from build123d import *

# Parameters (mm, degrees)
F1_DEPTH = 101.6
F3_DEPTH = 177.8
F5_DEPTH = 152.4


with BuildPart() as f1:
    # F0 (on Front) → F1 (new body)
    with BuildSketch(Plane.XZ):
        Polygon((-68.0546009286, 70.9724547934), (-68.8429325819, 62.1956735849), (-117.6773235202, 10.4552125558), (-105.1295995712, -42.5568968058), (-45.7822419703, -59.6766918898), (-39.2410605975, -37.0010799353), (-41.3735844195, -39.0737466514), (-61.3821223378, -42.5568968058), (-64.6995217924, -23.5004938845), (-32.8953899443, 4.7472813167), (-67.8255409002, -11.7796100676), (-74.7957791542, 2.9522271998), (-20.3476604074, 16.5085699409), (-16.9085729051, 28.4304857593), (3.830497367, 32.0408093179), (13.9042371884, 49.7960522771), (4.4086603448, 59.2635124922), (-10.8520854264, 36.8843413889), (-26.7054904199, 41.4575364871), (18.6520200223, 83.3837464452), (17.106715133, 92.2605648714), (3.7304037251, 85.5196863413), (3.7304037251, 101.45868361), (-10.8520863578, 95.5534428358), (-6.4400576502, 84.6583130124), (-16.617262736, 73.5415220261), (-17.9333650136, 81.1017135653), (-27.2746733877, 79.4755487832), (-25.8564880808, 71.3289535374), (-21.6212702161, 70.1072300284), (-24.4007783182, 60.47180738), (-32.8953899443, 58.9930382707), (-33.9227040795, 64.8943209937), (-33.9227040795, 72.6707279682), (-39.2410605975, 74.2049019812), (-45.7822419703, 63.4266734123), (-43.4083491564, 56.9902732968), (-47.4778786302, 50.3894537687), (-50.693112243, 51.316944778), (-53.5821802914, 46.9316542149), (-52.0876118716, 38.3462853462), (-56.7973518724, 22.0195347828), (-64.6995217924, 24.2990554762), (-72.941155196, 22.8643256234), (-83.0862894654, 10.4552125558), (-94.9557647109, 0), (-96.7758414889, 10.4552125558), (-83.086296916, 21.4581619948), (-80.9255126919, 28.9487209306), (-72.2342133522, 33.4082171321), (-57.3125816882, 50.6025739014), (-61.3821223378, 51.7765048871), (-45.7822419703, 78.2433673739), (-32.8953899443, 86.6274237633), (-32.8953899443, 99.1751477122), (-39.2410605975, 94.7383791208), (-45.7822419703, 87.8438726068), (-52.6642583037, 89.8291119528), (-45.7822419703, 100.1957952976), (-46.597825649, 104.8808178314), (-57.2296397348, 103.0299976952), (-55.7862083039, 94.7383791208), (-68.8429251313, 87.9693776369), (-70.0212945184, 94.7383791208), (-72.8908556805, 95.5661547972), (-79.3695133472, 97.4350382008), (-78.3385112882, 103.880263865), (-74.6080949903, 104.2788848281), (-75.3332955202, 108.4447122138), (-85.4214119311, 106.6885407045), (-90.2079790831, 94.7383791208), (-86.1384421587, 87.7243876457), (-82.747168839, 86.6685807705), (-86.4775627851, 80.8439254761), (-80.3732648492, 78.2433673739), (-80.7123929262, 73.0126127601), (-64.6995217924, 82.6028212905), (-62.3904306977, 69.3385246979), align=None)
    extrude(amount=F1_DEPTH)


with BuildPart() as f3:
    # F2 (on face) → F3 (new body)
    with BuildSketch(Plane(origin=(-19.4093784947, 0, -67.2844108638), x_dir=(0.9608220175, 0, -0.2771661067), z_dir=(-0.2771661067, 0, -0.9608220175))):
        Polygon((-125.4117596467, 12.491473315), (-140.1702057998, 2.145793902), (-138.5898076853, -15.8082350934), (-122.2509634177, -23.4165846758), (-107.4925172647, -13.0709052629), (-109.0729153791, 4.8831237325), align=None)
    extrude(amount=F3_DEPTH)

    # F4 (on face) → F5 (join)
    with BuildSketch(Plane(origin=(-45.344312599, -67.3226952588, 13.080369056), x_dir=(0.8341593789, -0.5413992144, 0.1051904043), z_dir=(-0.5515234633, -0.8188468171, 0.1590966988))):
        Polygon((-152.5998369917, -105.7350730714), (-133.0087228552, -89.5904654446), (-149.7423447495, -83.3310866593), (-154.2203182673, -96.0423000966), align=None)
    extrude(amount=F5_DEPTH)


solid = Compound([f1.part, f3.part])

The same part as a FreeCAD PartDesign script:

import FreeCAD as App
import Part
import Sketcher
Q = App.Units.Quantity

doc = App.newDocument("Part")
body = doc.addObject("PartDesign::Body", "Body")

# Sketch on XZ plane
sketch1 = body.newObject("Sketcher::SketchObject", "Sketch")
sketch1.AttachmentSupport = (doc.getObject("XZ_Plane"), [""])
sketch1.MapMode = "FlatFace"
sketch1.addGeometry([
    Part.LineSegment(App.Vector(-68.054601, 70.972455, 0), App.Vector(-68.842933, 62.195674, 0)),  # 0
    Part.LineSegment(App.Vector(-68.842933, 62.195674, 0), App.Vector(-117.677324, 10.455213, 0)),  # 1
    Part.LineSegment(App.Vector(-117.677324, 10.455213, 0), App.Vector(-105.1296, -42.556897, 0)),  # 2
    Part.LineSegment(App.Vector(-105.1296, -42.556897, 0), App.Vector(-45.782242, -59.676692, 0)),  # 3
    Part.LineSegment(App.Vector(-45.782242, -59.676692, 0), App.Vector(-39.241061, -37.00108, 0)),  # 4
    Part.LineSegment(App.Vector(-39.241061, -37.00108, 0), App.Vector(-41.373584, -39.073747, 0)),  # 5
    Part.LineSegment(App.Vector(-41.373584, -39.073747, 0), App.Vector(-61.382122, -42.556897, 0)),  # 6
    Part.LineSegment(App.Vector(-61.382122, -42.556897, 0), App.Vector(-64.699522, -23.500494, 0)),  # 7
    Part.LineSegment(App.Vector(-64.699522, -23.500494, 0), App.Vector(-32.89539, 4.747281, 0)),  # 8
    Part.LineSegment(App.Vector(-32.89539, 4.747281, 0), App.Vector(-67.825541, -11.77961, 0)),  # 9
    Part.LineSegment(App.Vector(-67.825541, -11.77961, 0), App.Vector(-74.795779, 2.952227, 0)),  # 10
    Part.LineSegment(App.Vector(-74.795779, 2.952227, 0), App.Vector(-20.34766, 16.50857, 0)),  # 11
    Part.LineSegment(App.Vector(-20.34766, 16.50857, 0), App.Vector(-16.908573, 28.430486, 0)),  # 12
    Part.LineSegment(App.Vector(-16.908573, 28.430486, 0), App.Vector(3.830497, 32.040809, 0)),  # 13
    Part.LineSegment(App.Vector(3.830497, 32.040809, 0), App.Vector(13.904237, 49.796052, 0)),  # 14
    Part.LineSegment(App.Vector(13.904237, 49.796052, 0), App.Vector(4.40866, 59.263512, 0)),  # 15
    Part.LineSegment(App.Vector(4.40866, 59.263512, 0), App.Vector(-10.852085, 36.884341, 0)),  # 16
    Part.LineSegment(App.Vector(-10.852085, 36.884341, 0), App.Vector(-26.70549, 41.457536, 0)),  # 17
    Part.LineSegment(App.Vector(-26.70549, 41.457536, 0), App.Vector(18.65202, 83.383746, 0)),  # 18
    Part.LineSegment(App.Vector(18.65202, 83.383746, 0), App.Vector(17.106715, 92.260565, 0)),  # 19
    Part.LineSegment(App.Vector(17.106715, 92.260565, 0), App.Vector(3.730404, 85.519686, 0)),  # 20
    Part.LineSegment(App.Vector(3.730404, 85.519686, 0), App.Vector(3.730404, 101.458684, 0)),  # 21
    Part.LineSegment(App.Vector(3.730404, 101.458684, 0), App.Vector(-10.852086, 95.553443, 0)),  # 22
    Part.LineSegment(App.Vector(-10.852086, 95.553443, 0), App.Vector(-6.440058, 84.658313, 0)),  # 23
    Part.LineSegment(App.Vector(-6.440058, 84.658313, 0), App.Vector(-16.617263, 73.541522, 0)),  # 24
    Part.LineSegment(App.Vector(-16.617263, 73.541522, 0), App.Vector(-17.933365, 81.101714, 0)),  # 25
    Part.LineSegment(App.Vector(-17.933365, 81.101714, 0), App.Vector(-27.274673, 79.475549, 0)),  # 26
    Part.LineSegment(App.Vector(-27.274673, 79.475549, 0), App.Vector(-25.856488, 71.328954, 0)),  # 27
    Part.LineSegment(App.Vector(-25.856488, 71.328954, 0), App.Vector(-21.62127, 70.10723, 0)),  # 28
    Part.LineSegment(App.Vector(-21.62127, 70.10723, 0), App.Vector(-24.400778, 60.471807, 0)),  # 29
    Part.LineSegment(App.Vector(-24.400778, 60.471807, 0), App.Vector(-32.89539, 58.993038, 0)),  # 30
    Part.LineSegment(App.Vector(-32.89539, 58.993038, 0), App.Vector(-33.922704, 64.894321, 0)),  # 31
    Part.LineSegment(App.Vector(-33.922704, 64.894321, 0), App.Vector(-33.922704, 72.670728, 0)),  # 32
    Part.LineSegment(App.Vector(-33.922704, 72.670728, 0), App.Vector(-39.241061, 74.204902, 0)),  # 33
    Part.LineSegment(App.Vector(-39.241061, 74.204902, 0), App.Vector(-45.782242, 63.426673, 0)),  # 34
    Part.LineSegment(App.Vector(-45.782242, 63.426673, 0), App.Vector(-43.408349, 56.990273, 0)),  # 35
    Part.LineSegment(App.Vector(-43.408349, 56.990273, 0), App.Vector(-47.477879, 50.389454, 0)),  # 36
    Part.LineSegment(App.Vector(-47.477879, 50.389454, 0), App.Vector(-50.693112, 51.316945, 0)),  # 37
    Part.LineSegment(App.Vector(-50.693112, 51.316945, 0), App.Vector(-53.58218, 46.931654, 0)),  # 38
    Part.LineSegment(App.Vector(-53.58218, 46.931654, 0), App.Vector(-52.087612, 38.346285, 0)),  # 39
    Part.LineSegment(App.Vector(-52.087612, 38.346285, 0), App.Vector(-56.797352, 22.019535, 0)),  # 40
    Part.LineSegment(App.Vector(-56.797352, 22.019535, 0), App.Vector(-64.699522, 24.299055, 0)),  # 41
    Part.LineSegment(App.Vector(-64.699522, 24.299055, 0), App.Vector(-72.941155, 22.864326, 0)),  # 42
    Part.LineSegment(App.Vector(-72.941155, 22.864326, 0), App.Vector(-83.086289, 10.455213, 0)),  # 43
    Part.LineSegment(App.Vector(-83.086289, 10.455213, 0), App.Vector(-94.955765, 0, 0)),  # 44
    Part.LineSegment(App.Vector(-94.955765, 0, 0), App.Vector(-96.775841, 10.455213, 0)),  # 45
    Part.LineSegment(App.Vector(-96.775841, 10.455213, 0), App.Vector(-83.086297, 21.458162, 0)),  # 46
    Part.LineSegment(App.Vector(-83.086297, 21.458162, 0), App.Vector(-80.925513, 28.948721, 0)),  # 47
    Part.LineSegment(App.Vector(-80.925513, 28.948721, 0), App.Vector(-72.234213, 33.408217, 0)),  # 48
    Part.LineSegment(App.Vector(-72.234213, 33.408217, 0), App.Vector(-57.312582, 50.602574, 0)),  # 49
    Part.LineSegment(App.Vector(-57.312582, 50.602574, 0), App.Vector(-61.382122, 51.776505, 0)),  # 50
    Part.LineSegment(App.Vector(-61.382122, 51.776505, 0), App.Vector(-45.782242, 78.243367, 0)),  # 51
    Part.LineSegment(App.Vector(-45.782242, 78.243367, 0), App.Vector(-32.89539, 86.627424, 0)),  # 52
    Part.LineSegment(App.Vector(-32.89539, 86.627424, 0), App.Vector(-32.89539, 99.175148, 0)),  # 53
    Part.LineSegment(App.Vector(-32.89539, 99.175148, 0), App.Vector(-39.241061, 94.738379, 0)),  # 54
    Part.LineSegment(App.Vector(-39.241061, 94.738379, 0), App.Vector(-45.782242, 87.843873, 0)),  # 55
    Part.LineSegment(App.Vector(-45.782242, 87.843873, 0), App.Vector(-52.664258, 89.829112, 0)),  # 56
    Part.LineSegment(App.Vector(-52.664258, 89.829112, 0), App.Vector(-45.782242, 100.195795, 0)),  # 57
    Part.LineSegment(App.Vector(-45.782242, 100.195795, 0), App.Vector(-46.597826, 104.880818, 0)),  # 58
    Part.LineSegment(App.Vector(-46.597826, 104.880818, 0), App.Vector(-57.22964, 103.029998, 0)),  # 59
    Part.LineSegment(App.Vector(-57.22964, 103.029998, 0), App.Vector(-55.786208, 94.738379, 0)),  # 60
    Part.LineSegment(App.Vector(-55.786208, 94.738379, 0), App.Vector(-68.842925, 87.969378, 0)),  # 61
    Part.LineSegment(App.Vector(-68.842925, 87.969378, 0), App.Vector(-70.021295, 94.738379, 0)),  # 62
    Part.LineSegment(App.Vector(-70.021295, 94.738379, 0), App.Vector(-72.890856, 95.566155, 0)),  # 63
    Part.LineSegment(App.Vector(-72.890856, 95.566155, 0), App.Vector(-79.369513, 97.435038, 0)),  # 64
    Part.LineSegment(App.Vector(-79.369513, 97.435038, 0), App.Vector(-78.338511, 103.880264, 0)),  # 65
    Part.LineSegment(App.Vector(-78.338511, 103.880264, 0), App.Vector(-74.608095, 104.278885, 0)),  # 66
    Part.LineSegment(App.Vector(-74.608095, 104.278885, 0), App.Vector(-75.333296, 108.444712, 0)),  # 67
    Part.LineSegment(App.Vector(-75.333296, 108.444712, 0), App.Vector(-85.421412, 106.688541, 0)),  # 68
    Part.LineSegment(App.Vector(-85.421412, 106.688541, 0), App.Vector(-90.207979, 94.738379, 0)),  # 69
    Part.LineSegment(App.Vector(-90.207979, 94.738379, 0), App.Vector(-86.138442, 87.724388, 0)),  # 70
    Part.LineSegment(App.Vector(-86.138442, 87.724388, 0), App.Vector(-82.747169, 86.668581, 0)),  # 71
    Part.LineSegment(App.Vector(-82.747169, 86.668581, 0), App.Vector(-86.477563, 80.843925, 0)),  # 72
    Part.LineSegment(App.Vector(-86.477563, 80.843925, 0), App.Vector(-80.373265, 78.243367, 0)),  # 73
    Part.LineSegment(App.Vector(-80.373265, 78.243367, 0), App.Vector(-80.712393, 73.012613, 0)),  # 74
    Part.LineSegment(App.Vector(-80.712393, 73.012613, 0), App.Vector(-64.699522, 82.602821, 0)),  # 75
    Part.LineSegment(App.Vector(-64.699522, 82.602821, 0), App.Vector(-62.390431, 69.338525, 0)),  # 76
    Part.LineSegment(App.Vector(-62.390431, 69.338525, 0), App.Vector(-68.054601, 70.972455, 0)),  # 77
], False)
sketch1.addConstraint([
    Sketcher.Constraint("Coincident", 0, 2, 1, 1),
    Sketcher.Constraint("Coincident", 1, 2, 2, 1),
    Sketcher.Constraint("Coincident", 2, 2, 3, 1),
    Sketcher.Constraint("Coincident", 3, 2, 4, 1),
    Sketcher.Constraint("Coincident", 4, 2, 5, 1),
    Sketcher.Constraint("Coincident", 5, 2, 6, 1),
    Sketcher.Constraint("Coincident", 6, 2, 7, 1),
    Sketcher.Constraint("Coincident", 7, 2, 8, 1),
    Sketcher.Constraint("Coincident", 8, 2, 9, 1),
    Sketcher.Constraint("Coincident", 9, 2, 10, 1),
    Sketcher.Constraint("Coincident", 10, 2, 11, 1),
    Sketcher.Constraint("Coincident", 11, 2, 12, 1),
    Sketcher.Constraint("Coincident", 12, 2, 13, 1),
    Sketcher.Constraint("Coincident", 13, 2, 14, 1),
    Sketcher.Constraint("Coincident", 14, 2, 15, 1),
    Sketcher.Constraint("Coincident", 15, 2, 16, 1),
    Sketcher.Constraint("Coincident", 16, 2, 17, 1),
    Sketcher.Constraint("Coincident", 17, 2, 18, 1),
    Sketcher.Constraint("Coincident", 18, 2, 19, 1),
    Sketcher.Constraint("Coincident", 19, 2, 20, 1),
    Sketcher.Constraint("Coincident", 20, 2, 21, 1),
    Sketcher.Constraint("Coincident", 21, 2, 22, 1),
    Sketcher.Constraint("Coincident", 22, 2, 23, 1),
    Sketcher.Constraint("Coincident", 23, 2, 24, 1),
    Sketcher.Constraint("Coincident", 24, 2, 25, 1),
    Sketcher.Constraint("Coincident", 25, 2, 26, 1),
    Sketcher.Constraint("Coincident", 26, 2, 27, 1),
    Sketcher.Constraint("Coincident", 27, 2, 28, 1),
    Sketcher.Constraint("Coincident", 28, 2, 29, 1),
    Sketcher.Constraint("Coincident", 29, 2, 30, 1),
    Sketcher.Constraint("Coincident", 30, 2, 31, 1),
    Sketcher.Constraint("Coincident", 31, 2, 32, 1),
    Sketcher.Constraint("Coincident", 32, 2, 33, 1),
    Sketcher.Constraint("Coincident", 33, 2, 34, 1),
    Sketcher.Constraint("Coincident", 34, 2, 35, 1),
    Sketcher.Constraint("Coincident", 35, 2, 36, 1),
    Sketcher.Constraint("Coincident", 36, 2, 37, 1),
    Sketcher.Constraint("Coincident", 37, 2, 38, 1),
    Sketcher.Constraint("Coincident", 38, 2, 39, 1),
    Sketcher.Constraint("Coincident", 39, 2, 40, 1),
    Sketcher.Constraint("Coincident", 40, 2, 41, 1),
    Sketcher.Constraint("Coincident", 41, 2, 42, 1),
    Sketcher.Constraint("Coincident", 42, 2, 43, 1),
    Sketcher.Constraint("Coincident", 43, 2, 44, 1),
    Sketcher.Constraint("Coincident", 44, 2, 45, 1),
    Sketcher.Constraint("Coincident", 45, 2, 46, 1),
    Sketcher.Constraint("Coincident", 46, 2, 47, 1),
    Sketcher.Constraint("Coincident", 47, 2, 48, 1),
    Sketcher.Constraint("Coincident", 48, 2, 49, 1),
    Sketcher.Constraint("Coincident", 49, 2, 50, 1),
    Sketcher.Constraint("Coincident", 50, 2, 51, 1),
    Sketcher.Constraint("Coincident", 51, 2, 52, 1),
    Sketcher.Constraint("Coincident", 52, 2, 53, 1),
    Sketcher.Constraint("Coincident", 53, 2, 54, 1),
    Sketcher.Constraint("Coincident", 54, 2, 55, 1),
    Sketcher.Constraint("Coincident", 55, 2, 56, 1),
    Sketcher.Constraint("Coincident", 56, 2, 57, 1),
    Sketcher.Constraint("Coincident", 57, 2, 58, 1),
    Sketcher.Constraint("Coincident", 58, 2, 59, 1),
    Sketcher.Constraint("Coincident", 59, 2, 60, 1),
    Sketcher.Constraint("Coincident", 60, 2, 61, 1),
    Sketcher.Constraint("Coincident", 61, 2, 62, 1),
    Sketcher.Constraint("Coincident", 62, 2, 63, 1),
    Sketcher.Constraint("Coincident", 63, 2, 64, 1),
    Sketcher.Constraint("Coincident", 64, 2, 65, 1),
    Sketcher.Constraint("Coincident", 65, 2, 66, 1),
    Sketcher.Constraint("Coincident", 66, 2, 67, 1),
    Sketcher.Constraint("Coincident", 67, 2, 68, 1),
    Sketcher.Constraint("Coincident", 68, 2, 69, 1),
    Sketcher.Constraint("Coincident", 69, 2, 70, 1),
    Sketcher.Constraint("Coincident", 70, 2, 71, 1),
    Sketcher.Constraint("Coincident", 71, 2, 72, 1),
    Sketcher.Constraint("Coincident", 72, 2, 73, 1),
    Sketcher.Constraint("Coincident", 73, 2, 74, 1),
    Sketcher.Constraint("Coincident", 74, 2, 75, 1),
    Sketcher.Constraint("Coincident", 75, 2, 76, 1),
    Sketcher.Constraint("Coincident", 76, 2, 77, 1),
    Sketcher.Constraint("Coincident", 77, 2, 0, 1),
    Sketcher.Constraint("Vertical", 21),
    Sketcher.Constraint("Vertical", 32),
    Sketcher.Constraint("Vertical", 53),
    Sketcher.Constraint("PointOnObject", 44, 2, -1),
    Sketcher.Constraint("Distance", 17, Q("0.6495998 in")),
    Sketcher.Constraint("Distance", 7, Q("19.343 mm")),
    Sketcher.Constraint("DistanceX", 2, 2, -1, 1, Q("105.1296 mm")),
    Sketcher.Constraint("DistanceY", -1, 1, 33, 2, Q("74.204902 mm")),
    Sketcher.Constraint("DistanceX", 77, 2, -1, 1, Q("68.054601 mm")),
    Sketcher.Constraint("Distance", 1, Q("71.146841 mm")),
    Sketcher.Constraint("Distance", 4, Q("23.600221 mm")),
    Sketcher.Constraint("Distance", 5, Q("2.97382 mm")),
    Sketcher.Constraint("Distance", 8, Q("42.537508 mm")),
    Sketcher.Constraint("Distance", 9, Q("38.642639 mm")),
    Sketcher.Constraint("Distance", 14, Q("20.413939 mm")),
    Sketcher.Constraint("Distance", 19, Q("9.01032 mm")),
    Sketcher.Constraint("Distance", 24, Q("15.07178 mm")),
    Sketcher.Constraint("Distance", 28, Q("4.407911 mm")),
    Sketcher.Constraint("Distance", 29, Q("10.028312 mm")),
    Sketcher.Constraint("Distance", 35, Q("6.86022 mm")),
    Sketcher.Constraint("Distance", 40, Q("16.992482 mm")),
    Sketcher.Constraint("Distance", 47, Q("7.79599 mm")),
    Sketcher.Constraint("Distance", 50, Q("4.235478 mm")),
    Sketcher.Constraint("Distance", 51, Q("30.722159 mm")),
    Sketcher.Constraint("Distance", 55, Q("9.503751 mm")),
    Sketcher.Constraint("Distance", 57, Q("12.443081 mm")),
    Sketcher.Constraint("Distance", 59, Q("10.79171 mm")),
    Sketcher.Constraint("Distance", 60, Q("8.416319 mm")),
    Sketcher.Constraint("Distance", 63, Q("2.986569 mm")),
    Sketcher.Constraint("Distance", 64, Q("6.742828 mm")),
    Sketcher.Constraint("Distance", 67, Q("4.228479 mm")),
    Sketcher.Constraint("Distance", 70, Q("8.109082 mm")),
    Sketcher.Constraint("Distance", 73, Q("6.635161 mm")),
    Sketcher.Constraint("Distance", 75, Q("18.665051 mm")),
    Sketcher.Constraint("Distance", 77, Q("5.89513 mm")),
    Sketcher.Constraint("DistanceY", 21, 1, 21, 2, Q("15.938997 mm")),
    Sketcher.Constraint("DistanceY", 32, 1, 32, 2, Q("7.776407 mm")),
    Sketcher.Constraint("DistanceY", 53, 1, 53, 2, Q("12.547724 mm")),
    Sketcher.Constraint("DistanceX", 3, 2, -1, 1, Q("45.782242 mm")),
    Sketcher.Constraint("DistanceY", 3, 2, -1, 1, Q("59.676692 mm")),
    Sketcher.Constraint("DistanceX", 4, 2, -1, 1, Q("39.241061 mm")),
    Sketcher.Constraint("DistanceX", 7, 2, -1, 1, Q("64.699522 mm")),
    Sketcher.Constraint("DistanceX", 8, 2, -1, 1, Q("32.89539 mm")),
    Sketcher.Constraint("DistanceY", -1, 1, 8, 2, Q("4.747281 mm")),
    Sketcher.Constraint("DistanceX", 9, 2, -1, 1, Q("67.825541 mm")),
    Sketcher.Constraint("DistanceX", 10, 2, -1, 1, Q("74.795779 mm")),
    Sketcher.Constraint("DistanceX", 11, 2, -1, 1, Q("20.34766 mm")),
    Sketcher.Constraint("DistanceY", -1, 1, 11, 2, Q("16.50857 mm")),
    Sketcher.Constraint("DistanceY", -1, 1, 13, 2, Q("32.040809 mm")),
    Sketcher.Constraint("DistanceX", -1, 1, 15, 2, Q("4.40866 mm")),
    Sketcher.Constraint("DistanceY", -1, 1, 16, 2, Q("36.884341 mm")),
    Sketcher.Constraint("DistanceX", 17, 2, -1, 1, Q("26.70549 mm")),
    Sketcher.Constraint("DistanceX", -1, 1, 18, 2, Q("18.65202 mm")),
    Sketcher.Constraint("DistanceY", -1, 1, 26, 2, Q("79.475549 mm")),
    Sketcher.Constraint("DistanceX", 27, 2, -1, 1, Q("25.856488 mm")),
    Sketcher.Constraint("DistanceX", 28, 2, -1, 1, Q("21.62127 mm")),
    Sketcher.Constraint("DistanceY", -1, 1, 28, 2, Q("70.10723 mm")),
    Sketcher.Constraint("DistanceX", 29, 2, -1, 1, Q("24.400778 mm")),
    Sketcher.Constraint("DistanceX", 30, 2, -1, 1, Q("32.89539 mm")),
    Sketcher.Constraint("DistanceY", -1, 1, 30, 2, Q("58.993038 mm")),
    Sketcher.Constraint("DistanceY", -1, 1, 31, 2, Q("64.894321 mm")),
    Sketcher.Constraint("DistanceX", 33, 2, -1, 1, Q("39.241061 mm")),
    Sketcher.Constraint("DistanceX", 34, 2, -1, 1, Q("45.782242 mm")),
    Sketcher.Constraint("DistanceX", 35, 2, -1, 1, Q("43.408349 mm")),
    Sketcher.Constraint("DistanceX", 36, 2, -1, 1, Q("47.477879 mm")),
    Sketcher.Constraint("DistanceX", 38, 2, -1, 1, Q("53.58218 mm")),
    Sketcher.Constraint("DistanceX", 39, 2, -1, 1, Q("52.087612 mm")),
    Sketcher.Constraint("DistanceX", 40, 2, -1, 1, Q("56.797352 mm")),
    Sketcher.Constraint("DistanceX", 41, 2, -1, 1, Q("64.699522 mm")),
    Sketcher.Constraint("DistanceX", 43, 2, -1, 1, Q("83.086289 mm")),
    Sketcher.Constraint("DistanceX", 45, 2, -1, 1, Q("96.775841 mm")),
    Sketcher.Constraint("DistanceY", -1, 1, 46, 2, Q("21.458162 mm")),
    Sketcher.Constraint("DistanceY", -1, 1, 47, 2, Q("28.948721 mm")),
    Sketcher.Constraint("DistanceX", 49, 2, -1, 1, Q("57.312582 mm")),
    Sketcher.Constraint("DistanceX", 51, 2, -1, 1, Q("45.782242 mm")),
    Sketcher.Constraint("DistanceX", 52, 2, -1, 1, Q("32.89539 mm")),
    Sketcher.Constraint("DistanceX", 54, 2, -1, 1, Q("39.241061 mm")),
    Sketcher.Constraint("DistanceY", -1, 1, 54, 2, Q("94.738379 mm")),
    Sketcher.Constraint("DistanceX", 55, 2, -1, 1, Q("45.782242 mm")),
    Sketcher.Constraint("DistanceX", 56, 2, -1, 1, Q("52.664258 mm")),
    Sketcher.Constraint("DistanceY", -1, 1, 56, 2, Q("89.829112 mm")),
    Sketcher.Constraint("DistanceX", 57, 2, -1, 1, Q("45.782242 mm")),
    Sketcher.Constraint("DistanceX", 59, 2, -1, 1, Q("57.22964 mm")),
    Sketcher.Constraint("DistanceX", 60, 2, -1, 1, Q("55.786208 mm")),
    Sketcher.Constraint("DistanceY", -1, 1, 60, 2, Q("94.738379 mm")),
    Sketcher.Constraint("DistanceY", -1, 1, 62, 2, Q("94.738379 mm")),
    Sketcher.Constraint("DistanceY", -1, 1, 64, 2, Q("97.435038 mm")),
    Sketcher.Constraint("DistanceX", 65, 2, -1, 1, Q("78.338511 mm")),
    Sketcher.Constraint("DistanceX", 68, 2, -1, 1, Q("85.421412 mm")),
    Sketcher.Constraint("DistanceY", -1, 1, 68, 2, Q("106.688541 mm")),
    Sketcher.Constraint("DistanceX", 69, 2, -1, 1, Q("90.207979 mm")),
    Sketcher.Constraint("DistanceY", -1, 1, 69, 2, Q("94.738379 mm")),
    Sketcher.Constraint("DistanceX", 71, 2, -1, 1, Q("82.747169 mm")),
    Sketcher.Constraint("DistanceY", -1, 1, 71, 2, Q("86.668581 mm")),
    Sketcher.Constraint("DistanceX", 75, 2, -1, 1, Q("64.699522 mm")),
    Sketcher.Constraint("DistanceY", -1, 1, 75, 2, Q("82.602821 mm")),
    Sketcher.Constraint("DistanceX", 76, 2, -1, 1, Q("62.390431 mm")),
    Sketcher.Constraint("Distance", 0, Q("8.812114 mm")),
    Sketcher.Constraint("Distance", 2, Q("54.476868 mm")),
    Sketcher.Constraint("Distance", 3, Q("61.767275 mm")),
    Sketcher.Constraint("Distance", 6, Q("20.309454 mm")),
    Sketcher.Constraint("Distance", 10, Q("16.297584 mm")),
    Sketcher.Constraint("Distance", 12, Q("12.408038 mm")),
    Sketcher.Constraint("Distance", 13, Q("21.050973 mm")),
    Sketcher.Constraint("Distance", 15, Q("13.408907 mm")),
    Sketcher.Constraint("Distance", 16, Q("27.087223 mm")),
    Sketcher.Constraint("Distance", 18, Q("61.766583 mm")),
    Sketcher.Constraint("Distance", 20, Q("14.978823 mm")),
    Sketcher.Constraint("Distance", 22, Q("15.732796 mm")),
    Sketcher.Constraint("Distance", 23, Q("11.754567 mm")),
    Sketcher.Constraint("Distance", 25, Q("7.673892 mm")),
    Sketcher.Constraint("Distance", 26, Q("9.481796 mm")),
    Sketcher.Constraint("Distance", 27, Q("8.269115 mm")),
    Sketcher.Constraint("Distance", 31, Q("5.990034 mm")),
    Sketcher.Constraint("Distance", 34, Q("12.607826 mm")),
    Sketcher.Constraint("Distance", 36, Q("7.754475 mm")),
    Sketcher.Constraint("Distance", 37, Q("3.346336 mm")),
    Sketcher.Constraint("Distance", 38, Q("5.251427 mm")),
    Sketcher.Constraint("Distance", 39, Q("8.714488 mm")),
    Sketcher.Constraint("Distance", 41, Q("8.224385 mm")),
    Sketcher.Constraint("Distance", 42, Q("8.365583 mm")),
    Sketcher.Constraint("Distance", 43, Q("16.028407 mm")),
    Sketcher.Constraint("Distance", 44, Q("15.817582 mm")),
    Sketcher.Constraint("Distance", 45, Q("10.612453 mm")),
    Sketcher.Constraint("Distance", 46, Q("17.563272 mm")),
    Sketcher.Constraint("Distance", 48, Q("9.768613 mm")),
    Sketcher.Constraint("Distance", 49, Q("22.766225 mm")),
    Sketcher.Constraint("Distance", 52, Q("15.374113 mm")),
    Sketcher.Constraint("Distance", 54, Q("7.742897 mm")),
    Sketcher.Constraint("Distance", 58, Q("4.755482 mm")),
    Sketcher.Constraint("Distance", 61, Q("14.707047 mm")),
    Sketcher.Constraint("Distance", 62, Q("6.870803 mm")),
    Sketcher.Constraint("Distance", 65, Q("6.527166 mm")),
    Sketcher.Constraint("Distance", 66, Q("3.751654 mm")),
    Sketcher.Constraint("Distance", 68, Q("10.239836 mm")),
    Sketcher.Constraint("Distance", 71, Q("3.551825 mm")),
    Sketcher.Constraint("Distance", 72, Q("6.916824 mm")),
    Sketcher.Constraint("Distance", 74, Q("5.241737 mm")),
    Sketcher.Constraint("Distance", 76, Q("13.463783 mm")),
    Sketcher.Constraint("DistanceX", 0, 2, -1, 1, Q("68.842933 mm")),
    Sketcher.Constraint("DistanceX", 5, 2, -1, 1, Q("41.373584 mm")),
    Sketcher.Constraint("DistanceX", 12, 2, -1, 1, Q("16.908573 mm")),
    Sketcher.Constraint("DistanceX", -1, 1, 14, 2, Q("13.904237 mm")),
    Sketcher.Constraint("DistanceX", -1, 1, 19, 2, Q("17.106715 mm")),
    Sketcher.Constraint("DistanceX", -1, 1, 20, 2, Q("3.730404 mm")),
    Sketcher.Constraint("DistanceX", 22, 2, -1, 1, Q("10.852086 mm")),
    Sketcher.Constraint("DistanceX", 23, 2, -1, 1, Q("6.440058 mm")),
    Sketcher.Constraint("DistanceX", 24, 2, -1, 1, Q("16.617263 mm")),
    Sketcher.Constraint("DistanceX", 37, 2, -1, 1, Q("50.693112 mm")),
    Sketcher.Constraint("DistanceX", 42, 2, -1, 1, Q("72.941155 mm")),
    Sketcher.Constraint("DistanceX", 48, 2, -1, 1, Q("72.234213 mm")),
    Sketcher.Constraint("DistanceX", 61, 2, -1, 1, Q("68.842925 mm")),
    Sketcher.Constraint("DistanceX", 63, 2, -1, 1, Q("72.890856 mm")),
    Sketcher.Constraint("DistanceX", 66, 2, -1, 1, Q("74.608095 mm")),
    Sketcher.Constraint("DistanceX", 72, 2, -1, 1, Q("86.477563 mm")),
    Sketcher.Constraint("DistanceX", 73, 2, -1, 1, Q("80.373265 mm")),
])
pad1 = body.newObject("PartDesign::Pad", "Pad")
pad1.Profile = sketch1
pad1.Length = Q("4 in")
body2 = doc.addObject("PartDesign::Body", "Body001")

# Sketch on an angled plane
sketch2 = body2.newObject("Sketcher::SketchObject", "Sketch001")
sketch2.Placement = App.Placement(App.Vector(-19.409378, 0, -67.284411), App.Rotation(App.Vector(0.960822017, 0, -0.277166107), App.Vector(0, -0.999999999, 0), App.Vector(-0.277166107, 0, -0.960822017), "ZXY"))
sketch2.addGeometry([
    Part.LineSegment(App.Vector(-125, 12, 0), App.Vector(-140, 2, 0)),  # 0
    Part.LineSegment(App.Vector(-140, 2, 0), App.Vector(-139, -16, 0)),  # 1
    Part.LineSegment(App.Vector(-139, -16, 0), App.Vector(-122, -23, 0)),  # 2
    Part.LineSegment(App.Vector(-122, -23, 0), App.Vector(-107, -13, 0)),  # 3
    Part.LineSegment(App.Vector(-107, -13, 0), App.Vector(-109, 5, 0)),  # 4
    Part.LineSegment(App.Vector(-109, 5, 0), App.Vector(-125, 12, 0)),  # 5
], False)
sketch2.addConstraint([
    Sketcher.Constraint("Coincident", 0, 2, 1, 1),
    Sketcher.Constraint("Coincident", 1, 2, 2, 1),
    Sketcher.Constraint("Coincident", 2, 2, 3, 1),
    Sketcher.Constraint("Coincident", 3, 2, 4, 1),
    Sketcher.Constraint("Coincident", 4, 2, 5, 1),
    Sketcher.Constraint("Coincident", 5, 2, 0, 1),
    Sketcher.Constraint("Parallel", 0, 3),
    Sketcher.Constraint("Parallel", 1, 4),
    Sketcher.Constraint("Parallel", 2, 5),
    Sketcher.Constraint("Equal", 0, 1),
    Sketcher.Constraint("Equal", 1, 2),
    Sketcher.Constraint("Equal", 2, 3),
    Sketcher.Constraint("DistanceX", 0, 2, 1, 2, Q("1.580398 mm")),
    Sketcher.Constraint("DistanceY", 3, 2, 0, 2, Q("15.216699 mm")),
    Sketcher.Constraint("Distance", 0, Q("18.023452 mm")),
    Sketcher.Constraint("DistanceX", 5, 2, -1, 1, Q("125.41176 mm")),
    Sketcher.Constraint("DistanceY", 2, 2, 1, 2, Q("7.60835 mm")),
    Sketcher.Constraint("DistanceY", -1, 1, 0, 2, Q("2.145794 mm")),
])
pad2 = body2.newObject("PartDesign::Pad", "Pad001")
pad2.Profile = sketch2
pad2.Length = Q("7 in")

# Sketch on an angled plane
sketch3 = body2.newObject("Sketcher::SketchObject", "Sketch002")
sketch3.Placement = App.Placement(App.Vector(-45.344313, -67.322695, 13.080369), App.Rotation(App.Vector(0.834159379, -0.541399214, 0.105190404), App.Vector(0, 0.19072698, 0.981643122), App.Vector(-0.551523463, -0.818846817, 0.159096699), "ZXY"))
sketch3.addGeometry([
    Part.LineSegment(App.Vector(-153, -106, 0), App.Vector(-133, -90, 0)),
    Part.LineSegment(App.Vector(-133, -90, 0), App.Vector(-150, -83, 0)),
    Part.LineSegment(App.Vector(-150, -83, 0), App.Vector(-154, -96, 0)),
    Part.LineSegment(App.Vector(-154, -96, 0), App.Vector(-153, -106, 0)),
], False)
sketch3.addConstraint([
    Sketcher.Constraint("Coincident", 0, 2, 1, 1),
    Sketcher.Constraint("Coincident", 1, 2, 2, 1),
    Sketcher.Constraint("Coincident", 2, 2, 3, 1),
    Sketcher.Constraint("Coincident", 3, 2, 0, 1),
    Sketcher.Constraint("Distance", 1, Q("17.865999 mm")),
    Sketcher.Constraint("Distance", 3, Q("9.827299 mm")),
    Sketcher.Constraint("DistanceY", 2, 2, -1, 1, Q("96.0423 mm")),
    Sketcher.Constraint("Distance", 0, Q("25.386219 mm")),
    Sketcher.Constraint("DistanceX", 2, 2, -1, 1, Q("154.220318 mm")),
    Sketcher.Constraint("DistanceX", 1, 2, 0, 2, Q("16.733622 mm")),
    Sketcher.Constraint("DistanceX", 2, 2, 3, 2, Q("1.620481 mm")),
    Sketcher.Constraint("Distance", 2, Q("13.476913 mm")),
])
pad3 = body2.newObject("PartDesign::Pad", "Pad002")
pad3.Profile = sketch3
pad3.Length = Q("6 in")

doc.recompute()
